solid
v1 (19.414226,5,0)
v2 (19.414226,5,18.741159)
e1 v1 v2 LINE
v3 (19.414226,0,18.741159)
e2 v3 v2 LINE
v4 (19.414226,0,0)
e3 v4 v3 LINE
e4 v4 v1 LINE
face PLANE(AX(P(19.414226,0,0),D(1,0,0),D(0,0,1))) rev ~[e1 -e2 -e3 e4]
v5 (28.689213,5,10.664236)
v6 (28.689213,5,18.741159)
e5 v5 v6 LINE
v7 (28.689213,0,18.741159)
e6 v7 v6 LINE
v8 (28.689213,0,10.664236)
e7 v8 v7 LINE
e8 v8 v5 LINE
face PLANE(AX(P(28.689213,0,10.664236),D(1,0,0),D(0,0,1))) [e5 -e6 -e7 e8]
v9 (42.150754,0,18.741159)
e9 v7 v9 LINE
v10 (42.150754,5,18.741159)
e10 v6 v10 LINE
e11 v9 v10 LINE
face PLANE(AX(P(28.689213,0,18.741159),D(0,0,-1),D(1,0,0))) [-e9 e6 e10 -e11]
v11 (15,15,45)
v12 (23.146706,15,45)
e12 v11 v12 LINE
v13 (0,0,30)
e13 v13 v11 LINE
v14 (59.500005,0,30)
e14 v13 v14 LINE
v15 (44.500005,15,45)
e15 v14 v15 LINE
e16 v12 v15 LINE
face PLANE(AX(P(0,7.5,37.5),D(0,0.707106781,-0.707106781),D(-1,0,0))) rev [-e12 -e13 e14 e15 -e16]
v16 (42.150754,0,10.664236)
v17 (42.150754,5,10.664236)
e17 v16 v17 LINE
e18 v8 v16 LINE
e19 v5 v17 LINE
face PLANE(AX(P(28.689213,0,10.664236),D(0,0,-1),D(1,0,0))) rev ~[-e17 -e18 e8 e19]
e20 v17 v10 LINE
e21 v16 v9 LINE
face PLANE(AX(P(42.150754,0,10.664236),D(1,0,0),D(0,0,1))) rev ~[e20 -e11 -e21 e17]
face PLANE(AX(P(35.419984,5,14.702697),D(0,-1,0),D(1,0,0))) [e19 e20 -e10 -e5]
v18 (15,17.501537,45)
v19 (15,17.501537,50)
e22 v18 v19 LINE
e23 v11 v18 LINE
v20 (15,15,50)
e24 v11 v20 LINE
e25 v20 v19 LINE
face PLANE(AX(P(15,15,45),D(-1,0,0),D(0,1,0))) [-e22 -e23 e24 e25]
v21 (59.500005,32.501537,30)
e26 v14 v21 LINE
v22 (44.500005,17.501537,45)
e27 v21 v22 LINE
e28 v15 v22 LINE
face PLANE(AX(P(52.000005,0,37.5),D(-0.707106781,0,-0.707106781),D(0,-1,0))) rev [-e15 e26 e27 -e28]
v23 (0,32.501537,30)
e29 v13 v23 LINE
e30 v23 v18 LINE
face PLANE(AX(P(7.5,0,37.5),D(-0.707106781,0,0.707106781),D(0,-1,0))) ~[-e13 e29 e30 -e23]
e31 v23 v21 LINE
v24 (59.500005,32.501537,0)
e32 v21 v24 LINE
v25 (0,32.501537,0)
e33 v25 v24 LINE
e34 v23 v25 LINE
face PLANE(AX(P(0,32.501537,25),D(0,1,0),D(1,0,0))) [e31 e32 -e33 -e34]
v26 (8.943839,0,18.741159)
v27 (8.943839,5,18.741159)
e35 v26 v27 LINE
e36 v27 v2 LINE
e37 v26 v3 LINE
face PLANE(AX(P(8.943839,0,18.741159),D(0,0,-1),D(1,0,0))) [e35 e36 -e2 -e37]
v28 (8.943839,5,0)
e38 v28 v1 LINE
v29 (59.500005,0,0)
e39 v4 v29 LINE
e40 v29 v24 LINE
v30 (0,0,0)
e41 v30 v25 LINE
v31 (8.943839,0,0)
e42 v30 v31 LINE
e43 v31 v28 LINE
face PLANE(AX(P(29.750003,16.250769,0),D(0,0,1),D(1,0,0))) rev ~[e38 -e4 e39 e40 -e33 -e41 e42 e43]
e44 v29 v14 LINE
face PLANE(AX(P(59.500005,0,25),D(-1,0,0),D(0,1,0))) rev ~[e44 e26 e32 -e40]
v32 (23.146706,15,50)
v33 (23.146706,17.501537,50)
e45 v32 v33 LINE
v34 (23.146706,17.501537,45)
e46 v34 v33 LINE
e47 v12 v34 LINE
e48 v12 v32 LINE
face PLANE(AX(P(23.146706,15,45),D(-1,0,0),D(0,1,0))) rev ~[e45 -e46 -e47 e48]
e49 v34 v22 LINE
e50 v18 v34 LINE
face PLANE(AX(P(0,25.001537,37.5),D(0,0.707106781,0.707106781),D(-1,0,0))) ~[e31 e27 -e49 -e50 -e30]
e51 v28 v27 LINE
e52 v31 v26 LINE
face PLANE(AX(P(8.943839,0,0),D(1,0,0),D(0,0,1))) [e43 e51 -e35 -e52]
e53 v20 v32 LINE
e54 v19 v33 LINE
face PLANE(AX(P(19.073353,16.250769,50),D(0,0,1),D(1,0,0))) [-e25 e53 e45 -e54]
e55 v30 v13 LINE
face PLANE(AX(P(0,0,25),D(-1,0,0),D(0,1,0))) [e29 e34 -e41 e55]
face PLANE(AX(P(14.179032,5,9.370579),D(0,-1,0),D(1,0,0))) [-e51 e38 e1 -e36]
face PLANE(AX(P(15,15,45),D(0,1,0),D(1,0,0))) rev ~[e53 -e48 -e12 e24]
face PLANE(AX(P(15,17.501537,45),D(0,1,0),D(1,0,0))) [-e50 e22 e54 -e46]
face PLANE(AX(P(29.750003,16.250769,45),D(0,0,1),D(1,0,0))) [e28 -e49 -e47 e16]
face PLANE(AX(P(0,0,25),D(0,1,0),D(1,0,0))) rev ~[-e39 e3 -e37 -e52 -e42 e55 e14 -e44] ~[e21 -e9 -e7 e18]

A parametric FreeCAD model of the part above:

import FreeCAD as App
import Part
import Sketcher


def edges_at(feature, points):
    """Names of the edges that pass closest to the given points."""
    edges = feature.Shape.Edges
    near = lambda p: min(range(len(edges)), key=lambda i: edges[i].distToShape(Part.Vertex(*p))[0])
    return sorted({f"Edge{near(p) + 1}" for p in points})


def add_polygon(sketch, points):
    """Adds a closed chain of lines whose ends are joined by coincident constraints."""
    first, n = sketch.GeometryCount, len(points)
    for a, b in zip(points, points[1:] + points[:1]):
        sketch.addGeometry(Part.LineSegment(App.Vector(*a, 0), App.Vector(*b, 0)), False)
    for i in range(n):
        sketch.addConstraint(Sketcher.Constraint("Coincident", first + i, 2, first + (i + 1) % n, 1))

doc = App.newDocument("Part")
body = doc.addObject("PartDesign::Body", "Body")

# Sketch on XY plane
sketch1 = body.newObject("Sketcher::SketchObject", "Sketch")
sketch1.AttachmentSupport = (doc.getObject("XY_Plane"), [""])
sketch1.MapMode = "FlatFace"
add_polygon(sketch1, [(0, 32.501537), (0, 0), (59.500005, 0), (59.500005, 32.501537)])  # lines 0-3
sketch1.addConstraint([
    Sketcher.Constraint("Vertical", 0),
    Sketcher.Constraint("Horizontal", 1),
    Sketcher.Constraint("Vertical", 2),
    Sketcher.Constraint("Horizontal", 3),
    Sketcher.Constraint("Coincident", 0, 2, -1, 1),
    Sketcher.Constraint("DistanceX", 1, 1, 1, 2, 59.500005),
    Sketcher.Constraint("DistanceY", 0, 2, 0, 1, 32.501537),
])
pad1 = body.newObject("PartDesign::Pad", "Pad")
pad1.Profile = sketch1
pad1.Length = 25

# Sketch on XY plane
sketch2 = body.newObject("Sketcher::SketchObject", "Sketch001")
sketch2.AttachmentSupport = (doc.getObject("XY_Plane"), [""])
sketch2.MapMode = "FlatFace"
sketch2.AttachmentOffset = App.Placement(App.Vector(0, 0, 25), App.Rotation())
add_polygon(sketch2, [(0, 32.501537), (0, 0), (59.500005, 0), (59.500005, 32.501537)])  # lines 0-3
sketch2.addConstraint([
    Sketcher.Constraint("Vertical", 0),
    Sketcher.Constraint("Horizontal", 1),
    Sketcher.Constraint("Vertical", 2),
    Sketcher.Constraint("Horizontal", 3),
    Sketcher.Constraint("Coincident", 0, 2, -1, 1),
    Sketcher.Constraint("DistanceX", 1, 1, 1, 2, 59.500005),
    Sketcher.Constraint("DistanceY", 0, 2, 0, 1, 32.501537),
])
pad2 = body.newObject("PartDesign::Pad", "Pad001")
pad2.Profile = sketch2
pad2.Length = 20
doc.recompute()

chamfer = body.newObject("PartDesign::Chamfer", "Chamfer")
chamfer.Base = (pad2, edges_at(pad2, [
    (0, 16.251, 45),
    (59.5, 16.251, 45),
    (29.75, 0, 45),
    (29.75, 32.502, 45),
]))
chamfer.Size = 15

# Sketch on XZ plane
sketch3 = body.newObject("Sketcher::SketchObject", "Sketch002")
sketch3.AttachmentSupport = (doc.getObject("XZ_Plane"), [""])
sketch3.MapMode = "FlatFace"
add_polygon(sketch3, [(8.943839, 18.741159), (8.943839, 0), (19.414226, 0), (19.414226, 18.741159)])  # lines 0-3
add_polygon(sketch3, [(28.689213, 18.741159), (28.689213, 10.664236), (42.150754, 10.664236), (42.150754, 18.741159)])  # lines 4-7
sketch3.addConstraint([
    Sketcher.Constraint("Vertical", 0),
    Sketcher.Constraint("Horizontal", 1),
    Sketcher.Constraint("Vertical", 2),
    Sketcher.Constraint("Horizontal", 3),
    Sketcher.Constraint("Vertical", 4),
    Sketcher.Constraint("Horizontal", 5),
    Sketcher.Constraint("Vertical", 6),
    Sketcher.Constraint("Horizontal", 7),
    Sketcher.Constraint("PointOnObject", 0, 2, -1),
    Sketcher.Constraint("Horizontal", 3, 2, 6, 2),
    Sketcher.Constraint("DistanceX", 5, 1, 5, 2, 13.461541),
    Sketcher.Constraint("DistanceY", 0, 2, 0, 1, 18.741159),
    Sketcher.Constraint("DistanceX", 1, 1, 1, 2, 10.470387),
    Sketcher.Constraint("DistanceY", 4, 2, 4, 1, 8.076923),
    Sketcher.Constraint("DistanceX", -1, 1, 0, 2, 8.943839),
    Sketcher.Constraint("DistanceX", 2, 2, 5, 2, 22.736529),
])
pocket1 = body.newObject("PartDesign::Pocket", "Pocket")
pocket1.Profile = sketch3
pocket1.Length = 5

# Sketch on XY plane
sketch4 = body.newObject("Sketcher::SketchObject", "Sketch003")
sketch4.AttachmentSupport = (doc.getObject("XY_Plane"), [""])
sketch4.MapMode = "FlatFace"
sketch4.AttachmentOffset = App.Placement(App.Vector(0, 0, 45), App.Rotation())
add_polygon(sketch4, [(15, 17.501537), (15, 15), (23.146706, 15), (23.146706, 17.501537)])  # lines 0-3
sketch4.addConstraint([
    Sketcher.Constraint("Vertical", 0),
    Sketcher.Constraint("Horizontal", 1),
    Sketcher.Constraint("Vertical", 2),
    Sketcher.Constraint("Horizontal", 3),
    Sketcher.Constraint("DistanceX", -1, 1, 0, 2, 15.0),
    Sketcher.Constraint("DistanceY", -1, 1, 0, 2, 15.0),
    Sketcher.Constraint("DistanceX", 1, 1, 1, 2, 8.146706),
    Sketcher.Constraint("DistanceY", 0, 2, 0, 1, 2.501537),
])
pad3 = body.newObject("PartDesign::Pad", "Pad002")
pad3.Profile = sketch4
pad3.Length = 5

doc.recompute()
